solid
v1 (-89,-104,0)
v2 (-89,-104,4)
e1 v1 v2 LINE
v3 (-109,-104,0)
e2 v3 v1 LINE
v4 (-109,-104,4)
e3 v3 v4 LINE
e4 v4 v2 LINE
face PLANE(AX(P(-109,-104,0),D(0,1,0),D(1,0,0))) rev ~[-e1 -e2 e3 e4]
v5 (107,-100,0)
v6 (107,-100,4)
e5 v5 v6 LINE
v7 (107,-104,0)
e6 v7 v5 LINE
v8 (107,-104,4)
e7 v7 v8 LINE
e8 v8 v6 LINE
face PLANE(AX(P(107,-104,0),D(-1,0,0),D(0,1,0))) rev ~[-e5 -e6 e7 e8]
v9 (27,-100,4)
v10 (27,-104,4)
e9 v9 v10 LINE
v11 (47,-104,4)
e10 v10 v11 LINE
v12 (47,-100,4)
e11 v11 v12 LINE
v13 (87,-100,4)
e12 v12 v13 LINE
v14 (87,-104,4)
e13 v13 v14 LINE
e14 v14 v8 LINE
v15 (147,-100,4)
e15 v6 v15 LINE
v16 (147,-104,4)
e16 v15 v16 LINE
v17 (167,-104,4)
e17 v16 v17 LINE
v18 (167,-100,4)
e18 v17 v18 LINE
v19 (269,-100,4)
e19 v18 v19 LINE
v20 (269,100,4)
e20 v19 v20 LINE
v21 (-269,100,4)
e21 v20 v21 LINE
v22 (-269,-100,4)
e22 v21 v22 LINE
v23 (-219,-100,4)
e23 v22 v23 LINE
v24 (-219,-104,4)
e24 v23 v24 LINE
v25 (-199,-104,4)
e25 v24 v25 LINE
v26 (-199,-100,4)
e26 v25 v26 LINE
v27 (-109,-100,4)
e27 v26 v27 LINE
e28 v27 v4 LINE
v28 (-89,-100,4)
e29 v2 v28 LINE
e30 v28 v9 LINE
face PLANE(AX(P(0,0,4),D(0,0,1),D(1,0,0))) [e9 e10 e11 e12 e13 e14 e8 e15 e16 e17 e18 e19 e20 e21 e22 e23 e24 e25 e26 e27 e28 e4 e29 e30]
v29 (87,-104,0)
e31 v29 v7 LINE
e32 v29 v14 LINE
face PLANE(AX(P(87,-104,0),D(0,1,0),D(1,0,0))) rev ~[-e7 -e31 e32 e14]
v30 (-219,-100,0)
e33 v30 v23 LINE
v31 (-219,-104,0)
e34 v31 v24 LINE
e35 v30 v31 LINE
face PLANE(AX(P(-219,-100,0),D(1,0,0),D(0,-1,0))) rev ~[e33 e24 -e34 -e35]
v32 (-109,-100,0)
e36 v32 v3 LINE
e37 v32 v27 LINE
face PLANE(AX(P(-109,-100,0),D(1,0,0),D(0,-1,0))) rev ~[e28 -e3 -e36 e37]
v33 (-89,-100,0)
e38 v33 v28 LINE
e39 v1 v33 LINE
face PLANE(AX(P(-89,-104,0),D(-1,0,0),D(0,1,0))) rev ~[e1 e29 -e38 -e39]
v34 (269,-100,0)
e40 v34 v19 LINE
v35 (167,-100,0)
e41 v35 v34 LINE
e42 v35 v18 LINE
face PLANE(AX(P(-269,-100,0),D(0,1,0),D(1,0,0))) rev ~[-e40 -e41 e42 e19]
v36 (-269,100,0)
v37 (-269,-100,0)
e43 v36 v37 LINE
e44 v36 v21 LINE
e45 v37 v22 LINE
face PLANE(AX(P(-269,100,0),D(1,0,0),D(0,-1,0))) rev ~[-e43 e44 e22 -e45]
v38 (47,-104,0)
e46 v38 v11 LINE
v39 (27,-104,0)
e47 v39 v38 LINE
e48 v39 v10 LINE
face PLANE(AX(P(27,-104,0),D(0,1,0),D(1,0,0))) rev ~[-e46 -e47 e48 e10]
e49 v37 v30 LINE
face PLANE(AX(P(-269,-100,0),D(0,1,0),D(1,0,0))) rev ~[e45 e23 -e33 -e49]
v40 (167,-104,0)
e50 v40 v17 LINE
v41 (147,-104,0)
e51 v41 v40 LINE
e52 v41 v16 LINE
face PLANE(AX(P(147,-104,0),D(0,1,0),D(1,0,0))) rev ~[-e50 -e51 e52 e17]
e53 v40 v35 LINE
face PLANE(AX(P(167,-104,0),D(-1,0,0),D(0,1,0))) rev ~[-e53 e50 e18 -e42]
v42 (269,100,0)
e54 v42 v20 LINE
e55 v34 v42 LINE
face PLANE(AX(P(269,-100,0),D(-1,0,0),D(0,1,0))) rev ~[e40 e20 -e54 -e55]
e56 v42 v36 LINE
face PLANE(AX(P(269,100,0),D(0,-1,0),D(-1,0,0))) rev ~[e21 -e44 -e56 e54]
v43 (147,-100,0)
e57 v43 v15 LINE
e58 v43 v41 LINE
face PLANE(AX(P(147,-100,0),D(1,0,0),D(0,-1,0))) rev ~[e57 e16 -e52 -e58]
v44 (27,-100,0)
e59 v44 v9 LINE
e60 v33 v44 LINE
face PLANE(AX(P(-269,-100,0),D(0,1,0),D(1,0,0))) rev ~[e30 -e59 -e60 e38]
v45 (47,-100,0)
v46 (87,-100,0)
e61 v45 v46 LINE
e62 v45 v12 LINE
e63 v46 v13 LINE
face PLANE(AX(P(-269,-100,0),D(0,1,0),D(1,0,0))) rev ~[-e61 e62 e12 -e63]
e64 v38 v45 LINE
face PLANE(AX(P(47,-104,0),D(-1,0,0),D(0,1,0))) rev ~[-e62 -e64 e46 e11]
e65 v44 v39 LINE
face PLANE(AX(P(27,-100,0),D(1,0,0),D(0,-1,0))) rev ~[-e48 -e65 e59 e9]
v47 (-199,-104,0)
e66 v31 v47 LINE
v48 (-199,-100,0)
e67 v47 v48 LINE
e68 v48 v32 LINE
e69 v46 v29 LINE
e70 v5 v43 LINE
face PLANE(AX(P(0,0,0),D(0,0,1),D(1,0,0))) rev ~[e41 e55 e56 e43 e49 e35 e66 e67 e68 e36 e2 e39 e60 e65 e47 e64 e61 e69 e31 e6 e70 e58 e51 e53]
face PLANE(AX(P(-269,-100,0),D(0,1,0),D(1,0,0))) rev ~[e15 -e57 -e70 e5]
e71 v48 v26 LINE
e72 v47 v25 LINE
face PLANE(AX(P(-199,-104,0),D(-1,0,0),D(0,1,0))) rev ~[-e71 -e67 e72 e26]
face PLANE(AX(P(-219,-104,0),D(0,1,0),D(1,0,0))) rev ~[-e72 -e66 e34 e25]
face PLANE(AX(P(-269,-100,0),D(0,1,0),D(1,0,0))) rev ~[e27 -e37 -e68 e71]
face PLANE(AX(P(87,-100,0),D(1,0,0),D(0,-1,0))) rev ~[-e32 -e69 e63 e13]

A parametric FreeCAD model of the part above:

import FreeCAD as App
import Part
import Sketcher
from FreeCAD import Vector
Q = App.Units.Quantity

doc = App.newDocument("Part")
body = doc.addObject("PartDesign::Body", "Body")

sketch1 = body.newObject("Sketcher::SketchObject", "Sketch")
sketch1.AttachmentSupport = (doc.getObject("XY_Plane"), [""])
sketch1.MapMode = "FlatFace"
sketch1.addGeometry(Part.LineSegment(Vector(-269, 100, 0), Vector(-269, -100, 0)), False)
sketch1.addGeometry(Part.LineSegment(Vector(-269, -100, 0), Vector(-219, -100, 0)), False)
sketch1.addGeometry(Part.LineSegment(Vector(-219, -100, 0), Vector(-219, -104, 0)), False)
sketch1.addGeometry(Part.LineSegment(Vector(-219, -104, 0), Vector(-199, -104, 0)), False)
sketch1.addGeometry(Part.LineSegment(Vector(-199, -104, 0), Vector(-199, -100, 0)), False)
sketch1.addGeometry(Part.LineSegment(Vector(-199, -100, 0), Vector(-109, -100, 0)), False)
sketch1.addGeometry(Part.LineSegment(Vector(-109, -100, 0), Vector(-109, -104, 0)), False)
sketch1.addGeometry(Part.LineSegment(Vector(-109, -104, 0), Vector(-89, -104, 0)), False)
sketch1.addGeometry(Part.LineSegment(Vector(-89, -104, 0), Vector(-89, -100, 0)), False)
sketch1.addGeometry(Part.LineSegment(Vector(-89, -100, 0), Vector(27, -100, 0)), False)
sketch1.addGeometry(Part.LineSegment(Vector(27, -100, 0), Vector(27, -104, 0)), False)
sketch1.addGeometry(Part.LineSegment(Vector(27, -104, 0), Vector(47, -104, 0)), False)
sketch1.addGeometry(Part.LineSegment(Vector(47, -104, 0), Vector(47, -100, 0)), False)
sketch1.addGeometry(Part.LineSegment(Vector(47, -100, 0), Vector(87, -100, 0)), False)
sketch1.addGeometry(Part.LineSegment(Vector(87, -100, 0), Vector(87, -104, 0)), False)
sketch1.addGeometry(Part.LineSegment(Vector(87, -104, 0), Vector(107, -104, 0)), False)
sketch1.addGeometry(Part.LineSegment(Vector(107, -104, 0), Vector(107, -100, 0)), False)
sketch1.addGeometry(Part.LineSegment(Vector(107, -100, 0), Vector(147, -100, 0)), False)
sketch1.addGeometry(Part.LineSegment(Vector(147, -100, 0), Vector(147, -104, 0)), False)
sketch1.addGeometry(Part.LineSegment(Vector(147, -104, 0), Vector(167, -104, 0)), False)
sketch1.addGeometry(Part.LineSegment(Vector(167, -104, 0), Vector(167, -100, 0)), False)
sketch1.addGeometry(Part.LineSegment(Vector(167, -100, 0), Vector(269, -100, 0)), False)
sketch1.addGeometry(Part.LineSegment(Vector(269, -100, 0), Vector(269, 100, 0)), False)
sketch1.addGeometry(Part.LineSegment(Vector(269, 100, 0), Vector(-269, 100, 0)), False)
sketch1.addConstraint(Sketcher.Constraint("Coincident", 0, 2, 1, 1))
sketch1.addConstraint(Sketcher.Constraint("Coincident", 1, 2, 2, 1))
sketch1.addConstraint(Sketcher.Constraint("Coincident", 2, 2, 3, 1))
sketch1.addConstraint(Sketcher.Constraint("Coincident", 3, 2, 4, 1))
sketch1.addConstraint(Sketcher.Constraint("Coincident", 4, 2, 5, 1))
sketch1.addConstraint(Sketcher.Constraint("Coincident", 5, 2, 6, 1))
sketch1.addConstraint(Sketcher.Constraint("Coincident", 6, 2, 7, 1))
sketch1.addConstraint(Sketcher.Constraint("Coincident", 7, 2, 8, 1))
sketch1.addConstraint(Sketcher.Constraint("Coincident", 8, 2, 9, 1))
sketch1.addConstraint(Sketcher.Constraint("Coincident", 9, 2, 10, 1))
sketch1.addConstraint(Sketcher.Constraint("Coincident", 10, 2, 11, 1))
sketch1.addConstraint(Sketcher.Constraint("Coincident", 11, 2, 12, 1))
sketch1.addConstraint(Sketcher.Constraint("Coincident", 12, 2, 13, 1))
sketch1.addConstraint(Sketcher.Constraint("Coincident", 13, 2, 14, 1))
sketch1.addConstraint(Sketcher.Constraint("Coincident", 14, 2, 15, 1))
sketch1.addConstraint(Sketcher.Constraint("Coincident", 15, 2, 16, 1))
sketch1.addConstraint(Sketcher.Constraint("Coincident", 16, 2, 17, 1))
sketch1.addConstraint(Sketcher.Constraint("Coincident", 17, 2, 18, 1))
sketch1.addConstraint(Sketcher.Constraint("Coincident", 18, 2, 19, 1))
sketch1.addConstraint(Sketcher.Constraint("Coincident", 19, 2, 20, 1))
sketch1.addConstraint(Sketcher.Constraint("Coincident", 20, 2, 21, 1))
sketch1.addConstraint(Sketcher.Constraint("Coincident", 21, 2, 22, 1))
sketch1.addConstraint(Sketcher.Constraint("Coincident", 22, 2, 23, 1))
sketch1.addConstraint(Sketcher.Constraint("Coincident", 23, 2, 0, 1))
sketch1.addConstraint(Sketcher.Constraint("Vertical", 0))
sketch1.addConstraint(Sketcher.Constraint("Horizontal", 1))
sketch1.addConstraint(Sketcher.Constraint("Vertical", 2))
sketch1.addConstraint(Sketcher.Constraint("Horizontal", 3))
sketch1.addConstraint(Sketcher.Constraint("Vertical", 4))
sketch1.addConstraint(Sketcher.Constraint("Horizontal", 5))
sketch1.addConstraint(Sketcher.Constraint("Vertical", 6))
sketch1.addConstraint(Sketcher.Constraint("Horizontal", 7))
sketch1.addConstraint(Sketcher.Constraint("Vertical", 8))
sketch1.addConstraint(Sketcher.Constraint("Horizontal", 9))
sketch1.addConstraint(Sketcher.Constraint("Vertical", 10))
sketch1.addConstraint(Sketcher.Constraint("Horizontal", 11))
sketch1.addConstraint(Sketcher.Constraint("Vertical", 12))
sketch1.addConstraint(Sketcher.Constraint("Horizontal", 13))
sketch1.addConstraint(Sketcher.Constraint("Vertical", 14))
sketch1.addConstraint(Sketcher.Constraint("Horizontal", 15))
sketch1.addConstraint(Sketcher.Constraint("Vertical", 16))
sketch1.addConstraint(Sketcher.Constraint("Horizontal", 17))
sketch1.addConstraint(Sketcher.Constraint("Vertical", 18))
sketch1.addConstraint(Sketcher.Constraint("Horizontal", 19))
sketch1.addConstraint(Sketcher.Constraint("Vertical", 20))
sketch1.addConstraint(Sketcher.Constraint("Horizontal", 21))
sketch1.addConstraint(Sketcher.Constraint("Vertical", 22))
sketch1.addConstraint(Sketcher.Constraint("Horizontal", 23))
sketch1.addConstraint(Sketcher.Constraint("Symmetric", 0, 2, 22, 2, -1, 1))
sketch1.addConstraint(Sketcher.Constraint("Horizontal", 1, 2, 4, 2))
sketch1.addConstraint(Sketcher.Constraint("Horizontal", 3, 2, 6, 2))
sketch1.addConstraint(Sketcher.Constraint("Horizontal", 5, 2, 8, 2))
sketch1.addConstraint(Sketcher.Constraint("Horizontal", 7, 2, 10, 2))
sketch1.addConstraint(Sketcher.Constraint("Horizontal", 9, 2, 12, 2))
sketch1.addConstraint(Sketcher.Constraint("Horizontal", 11, 2, 14, 2))
sketch1.addConstraint(Sketcher.Constraint("Horizontal", 13, 2, 16, 2))
sketch1.addConstraint(Sketcher.Constraint("Horizontal", 15, 2, 18, 2))
sketch1.addConstraint(Sketcher.Constraint("Horizontal", 17, 2, 20, 2))
sketch1.addConstraint(Sketcher.Constraint("Equal", 3, 7))
sketch1.addConstraint(Sketcher.Constraint("Equal", 7, 11))
sketch1.addConstraint(Sketcher.Constraint("Equal", 11, 15))
sketch1.addConstraint(Sketcher.Constraint("Equal", 13, 17))
sketch1.addConstraint(Sketcher.Constraint("Equal", 15, 19))
sketch1.addConstraint(Sketcher.Constraint("DistanceX", 1, 1, 1, 2, Q("50 mm")))
sketch1.addConstraint(Sketcher.Constraint("DistanceX", 3, 1, 3, 2, Q("20 mm")))
sketch1.addConstraint(Sketcher.Constraint("DistanceX", 5, 1, 5, 2, Q("90 mm")))
sketch1.addConstraint(Sketcher.Constraint("DistanceX", 9, 1, 9, 2, Q("116 mm")))
sketch1.addConstraint(Sketcher.Constraint("DistanceX", 13, 1, 13, 2, Q("40 mm")))
sketch1.addConstraint(Sketcher.Constraint("DistanceX", 21, 1, 21, 2, Q("102 mm")))
sketch1.addConstraint(Sketcher.Constraint("DistanceY", 0, 2, 0, 1, Q("200 mm")))
sketch1.addConstraint(Sketcher.Constraint("DistanceY", 2, 2, 2, 1, Q("4 mm")))
pad1 = body.newObject("PartDesign::Pad", "Pad")
pad1.Profile = sketch1
pad1.Length = 4

doc.recompute()
